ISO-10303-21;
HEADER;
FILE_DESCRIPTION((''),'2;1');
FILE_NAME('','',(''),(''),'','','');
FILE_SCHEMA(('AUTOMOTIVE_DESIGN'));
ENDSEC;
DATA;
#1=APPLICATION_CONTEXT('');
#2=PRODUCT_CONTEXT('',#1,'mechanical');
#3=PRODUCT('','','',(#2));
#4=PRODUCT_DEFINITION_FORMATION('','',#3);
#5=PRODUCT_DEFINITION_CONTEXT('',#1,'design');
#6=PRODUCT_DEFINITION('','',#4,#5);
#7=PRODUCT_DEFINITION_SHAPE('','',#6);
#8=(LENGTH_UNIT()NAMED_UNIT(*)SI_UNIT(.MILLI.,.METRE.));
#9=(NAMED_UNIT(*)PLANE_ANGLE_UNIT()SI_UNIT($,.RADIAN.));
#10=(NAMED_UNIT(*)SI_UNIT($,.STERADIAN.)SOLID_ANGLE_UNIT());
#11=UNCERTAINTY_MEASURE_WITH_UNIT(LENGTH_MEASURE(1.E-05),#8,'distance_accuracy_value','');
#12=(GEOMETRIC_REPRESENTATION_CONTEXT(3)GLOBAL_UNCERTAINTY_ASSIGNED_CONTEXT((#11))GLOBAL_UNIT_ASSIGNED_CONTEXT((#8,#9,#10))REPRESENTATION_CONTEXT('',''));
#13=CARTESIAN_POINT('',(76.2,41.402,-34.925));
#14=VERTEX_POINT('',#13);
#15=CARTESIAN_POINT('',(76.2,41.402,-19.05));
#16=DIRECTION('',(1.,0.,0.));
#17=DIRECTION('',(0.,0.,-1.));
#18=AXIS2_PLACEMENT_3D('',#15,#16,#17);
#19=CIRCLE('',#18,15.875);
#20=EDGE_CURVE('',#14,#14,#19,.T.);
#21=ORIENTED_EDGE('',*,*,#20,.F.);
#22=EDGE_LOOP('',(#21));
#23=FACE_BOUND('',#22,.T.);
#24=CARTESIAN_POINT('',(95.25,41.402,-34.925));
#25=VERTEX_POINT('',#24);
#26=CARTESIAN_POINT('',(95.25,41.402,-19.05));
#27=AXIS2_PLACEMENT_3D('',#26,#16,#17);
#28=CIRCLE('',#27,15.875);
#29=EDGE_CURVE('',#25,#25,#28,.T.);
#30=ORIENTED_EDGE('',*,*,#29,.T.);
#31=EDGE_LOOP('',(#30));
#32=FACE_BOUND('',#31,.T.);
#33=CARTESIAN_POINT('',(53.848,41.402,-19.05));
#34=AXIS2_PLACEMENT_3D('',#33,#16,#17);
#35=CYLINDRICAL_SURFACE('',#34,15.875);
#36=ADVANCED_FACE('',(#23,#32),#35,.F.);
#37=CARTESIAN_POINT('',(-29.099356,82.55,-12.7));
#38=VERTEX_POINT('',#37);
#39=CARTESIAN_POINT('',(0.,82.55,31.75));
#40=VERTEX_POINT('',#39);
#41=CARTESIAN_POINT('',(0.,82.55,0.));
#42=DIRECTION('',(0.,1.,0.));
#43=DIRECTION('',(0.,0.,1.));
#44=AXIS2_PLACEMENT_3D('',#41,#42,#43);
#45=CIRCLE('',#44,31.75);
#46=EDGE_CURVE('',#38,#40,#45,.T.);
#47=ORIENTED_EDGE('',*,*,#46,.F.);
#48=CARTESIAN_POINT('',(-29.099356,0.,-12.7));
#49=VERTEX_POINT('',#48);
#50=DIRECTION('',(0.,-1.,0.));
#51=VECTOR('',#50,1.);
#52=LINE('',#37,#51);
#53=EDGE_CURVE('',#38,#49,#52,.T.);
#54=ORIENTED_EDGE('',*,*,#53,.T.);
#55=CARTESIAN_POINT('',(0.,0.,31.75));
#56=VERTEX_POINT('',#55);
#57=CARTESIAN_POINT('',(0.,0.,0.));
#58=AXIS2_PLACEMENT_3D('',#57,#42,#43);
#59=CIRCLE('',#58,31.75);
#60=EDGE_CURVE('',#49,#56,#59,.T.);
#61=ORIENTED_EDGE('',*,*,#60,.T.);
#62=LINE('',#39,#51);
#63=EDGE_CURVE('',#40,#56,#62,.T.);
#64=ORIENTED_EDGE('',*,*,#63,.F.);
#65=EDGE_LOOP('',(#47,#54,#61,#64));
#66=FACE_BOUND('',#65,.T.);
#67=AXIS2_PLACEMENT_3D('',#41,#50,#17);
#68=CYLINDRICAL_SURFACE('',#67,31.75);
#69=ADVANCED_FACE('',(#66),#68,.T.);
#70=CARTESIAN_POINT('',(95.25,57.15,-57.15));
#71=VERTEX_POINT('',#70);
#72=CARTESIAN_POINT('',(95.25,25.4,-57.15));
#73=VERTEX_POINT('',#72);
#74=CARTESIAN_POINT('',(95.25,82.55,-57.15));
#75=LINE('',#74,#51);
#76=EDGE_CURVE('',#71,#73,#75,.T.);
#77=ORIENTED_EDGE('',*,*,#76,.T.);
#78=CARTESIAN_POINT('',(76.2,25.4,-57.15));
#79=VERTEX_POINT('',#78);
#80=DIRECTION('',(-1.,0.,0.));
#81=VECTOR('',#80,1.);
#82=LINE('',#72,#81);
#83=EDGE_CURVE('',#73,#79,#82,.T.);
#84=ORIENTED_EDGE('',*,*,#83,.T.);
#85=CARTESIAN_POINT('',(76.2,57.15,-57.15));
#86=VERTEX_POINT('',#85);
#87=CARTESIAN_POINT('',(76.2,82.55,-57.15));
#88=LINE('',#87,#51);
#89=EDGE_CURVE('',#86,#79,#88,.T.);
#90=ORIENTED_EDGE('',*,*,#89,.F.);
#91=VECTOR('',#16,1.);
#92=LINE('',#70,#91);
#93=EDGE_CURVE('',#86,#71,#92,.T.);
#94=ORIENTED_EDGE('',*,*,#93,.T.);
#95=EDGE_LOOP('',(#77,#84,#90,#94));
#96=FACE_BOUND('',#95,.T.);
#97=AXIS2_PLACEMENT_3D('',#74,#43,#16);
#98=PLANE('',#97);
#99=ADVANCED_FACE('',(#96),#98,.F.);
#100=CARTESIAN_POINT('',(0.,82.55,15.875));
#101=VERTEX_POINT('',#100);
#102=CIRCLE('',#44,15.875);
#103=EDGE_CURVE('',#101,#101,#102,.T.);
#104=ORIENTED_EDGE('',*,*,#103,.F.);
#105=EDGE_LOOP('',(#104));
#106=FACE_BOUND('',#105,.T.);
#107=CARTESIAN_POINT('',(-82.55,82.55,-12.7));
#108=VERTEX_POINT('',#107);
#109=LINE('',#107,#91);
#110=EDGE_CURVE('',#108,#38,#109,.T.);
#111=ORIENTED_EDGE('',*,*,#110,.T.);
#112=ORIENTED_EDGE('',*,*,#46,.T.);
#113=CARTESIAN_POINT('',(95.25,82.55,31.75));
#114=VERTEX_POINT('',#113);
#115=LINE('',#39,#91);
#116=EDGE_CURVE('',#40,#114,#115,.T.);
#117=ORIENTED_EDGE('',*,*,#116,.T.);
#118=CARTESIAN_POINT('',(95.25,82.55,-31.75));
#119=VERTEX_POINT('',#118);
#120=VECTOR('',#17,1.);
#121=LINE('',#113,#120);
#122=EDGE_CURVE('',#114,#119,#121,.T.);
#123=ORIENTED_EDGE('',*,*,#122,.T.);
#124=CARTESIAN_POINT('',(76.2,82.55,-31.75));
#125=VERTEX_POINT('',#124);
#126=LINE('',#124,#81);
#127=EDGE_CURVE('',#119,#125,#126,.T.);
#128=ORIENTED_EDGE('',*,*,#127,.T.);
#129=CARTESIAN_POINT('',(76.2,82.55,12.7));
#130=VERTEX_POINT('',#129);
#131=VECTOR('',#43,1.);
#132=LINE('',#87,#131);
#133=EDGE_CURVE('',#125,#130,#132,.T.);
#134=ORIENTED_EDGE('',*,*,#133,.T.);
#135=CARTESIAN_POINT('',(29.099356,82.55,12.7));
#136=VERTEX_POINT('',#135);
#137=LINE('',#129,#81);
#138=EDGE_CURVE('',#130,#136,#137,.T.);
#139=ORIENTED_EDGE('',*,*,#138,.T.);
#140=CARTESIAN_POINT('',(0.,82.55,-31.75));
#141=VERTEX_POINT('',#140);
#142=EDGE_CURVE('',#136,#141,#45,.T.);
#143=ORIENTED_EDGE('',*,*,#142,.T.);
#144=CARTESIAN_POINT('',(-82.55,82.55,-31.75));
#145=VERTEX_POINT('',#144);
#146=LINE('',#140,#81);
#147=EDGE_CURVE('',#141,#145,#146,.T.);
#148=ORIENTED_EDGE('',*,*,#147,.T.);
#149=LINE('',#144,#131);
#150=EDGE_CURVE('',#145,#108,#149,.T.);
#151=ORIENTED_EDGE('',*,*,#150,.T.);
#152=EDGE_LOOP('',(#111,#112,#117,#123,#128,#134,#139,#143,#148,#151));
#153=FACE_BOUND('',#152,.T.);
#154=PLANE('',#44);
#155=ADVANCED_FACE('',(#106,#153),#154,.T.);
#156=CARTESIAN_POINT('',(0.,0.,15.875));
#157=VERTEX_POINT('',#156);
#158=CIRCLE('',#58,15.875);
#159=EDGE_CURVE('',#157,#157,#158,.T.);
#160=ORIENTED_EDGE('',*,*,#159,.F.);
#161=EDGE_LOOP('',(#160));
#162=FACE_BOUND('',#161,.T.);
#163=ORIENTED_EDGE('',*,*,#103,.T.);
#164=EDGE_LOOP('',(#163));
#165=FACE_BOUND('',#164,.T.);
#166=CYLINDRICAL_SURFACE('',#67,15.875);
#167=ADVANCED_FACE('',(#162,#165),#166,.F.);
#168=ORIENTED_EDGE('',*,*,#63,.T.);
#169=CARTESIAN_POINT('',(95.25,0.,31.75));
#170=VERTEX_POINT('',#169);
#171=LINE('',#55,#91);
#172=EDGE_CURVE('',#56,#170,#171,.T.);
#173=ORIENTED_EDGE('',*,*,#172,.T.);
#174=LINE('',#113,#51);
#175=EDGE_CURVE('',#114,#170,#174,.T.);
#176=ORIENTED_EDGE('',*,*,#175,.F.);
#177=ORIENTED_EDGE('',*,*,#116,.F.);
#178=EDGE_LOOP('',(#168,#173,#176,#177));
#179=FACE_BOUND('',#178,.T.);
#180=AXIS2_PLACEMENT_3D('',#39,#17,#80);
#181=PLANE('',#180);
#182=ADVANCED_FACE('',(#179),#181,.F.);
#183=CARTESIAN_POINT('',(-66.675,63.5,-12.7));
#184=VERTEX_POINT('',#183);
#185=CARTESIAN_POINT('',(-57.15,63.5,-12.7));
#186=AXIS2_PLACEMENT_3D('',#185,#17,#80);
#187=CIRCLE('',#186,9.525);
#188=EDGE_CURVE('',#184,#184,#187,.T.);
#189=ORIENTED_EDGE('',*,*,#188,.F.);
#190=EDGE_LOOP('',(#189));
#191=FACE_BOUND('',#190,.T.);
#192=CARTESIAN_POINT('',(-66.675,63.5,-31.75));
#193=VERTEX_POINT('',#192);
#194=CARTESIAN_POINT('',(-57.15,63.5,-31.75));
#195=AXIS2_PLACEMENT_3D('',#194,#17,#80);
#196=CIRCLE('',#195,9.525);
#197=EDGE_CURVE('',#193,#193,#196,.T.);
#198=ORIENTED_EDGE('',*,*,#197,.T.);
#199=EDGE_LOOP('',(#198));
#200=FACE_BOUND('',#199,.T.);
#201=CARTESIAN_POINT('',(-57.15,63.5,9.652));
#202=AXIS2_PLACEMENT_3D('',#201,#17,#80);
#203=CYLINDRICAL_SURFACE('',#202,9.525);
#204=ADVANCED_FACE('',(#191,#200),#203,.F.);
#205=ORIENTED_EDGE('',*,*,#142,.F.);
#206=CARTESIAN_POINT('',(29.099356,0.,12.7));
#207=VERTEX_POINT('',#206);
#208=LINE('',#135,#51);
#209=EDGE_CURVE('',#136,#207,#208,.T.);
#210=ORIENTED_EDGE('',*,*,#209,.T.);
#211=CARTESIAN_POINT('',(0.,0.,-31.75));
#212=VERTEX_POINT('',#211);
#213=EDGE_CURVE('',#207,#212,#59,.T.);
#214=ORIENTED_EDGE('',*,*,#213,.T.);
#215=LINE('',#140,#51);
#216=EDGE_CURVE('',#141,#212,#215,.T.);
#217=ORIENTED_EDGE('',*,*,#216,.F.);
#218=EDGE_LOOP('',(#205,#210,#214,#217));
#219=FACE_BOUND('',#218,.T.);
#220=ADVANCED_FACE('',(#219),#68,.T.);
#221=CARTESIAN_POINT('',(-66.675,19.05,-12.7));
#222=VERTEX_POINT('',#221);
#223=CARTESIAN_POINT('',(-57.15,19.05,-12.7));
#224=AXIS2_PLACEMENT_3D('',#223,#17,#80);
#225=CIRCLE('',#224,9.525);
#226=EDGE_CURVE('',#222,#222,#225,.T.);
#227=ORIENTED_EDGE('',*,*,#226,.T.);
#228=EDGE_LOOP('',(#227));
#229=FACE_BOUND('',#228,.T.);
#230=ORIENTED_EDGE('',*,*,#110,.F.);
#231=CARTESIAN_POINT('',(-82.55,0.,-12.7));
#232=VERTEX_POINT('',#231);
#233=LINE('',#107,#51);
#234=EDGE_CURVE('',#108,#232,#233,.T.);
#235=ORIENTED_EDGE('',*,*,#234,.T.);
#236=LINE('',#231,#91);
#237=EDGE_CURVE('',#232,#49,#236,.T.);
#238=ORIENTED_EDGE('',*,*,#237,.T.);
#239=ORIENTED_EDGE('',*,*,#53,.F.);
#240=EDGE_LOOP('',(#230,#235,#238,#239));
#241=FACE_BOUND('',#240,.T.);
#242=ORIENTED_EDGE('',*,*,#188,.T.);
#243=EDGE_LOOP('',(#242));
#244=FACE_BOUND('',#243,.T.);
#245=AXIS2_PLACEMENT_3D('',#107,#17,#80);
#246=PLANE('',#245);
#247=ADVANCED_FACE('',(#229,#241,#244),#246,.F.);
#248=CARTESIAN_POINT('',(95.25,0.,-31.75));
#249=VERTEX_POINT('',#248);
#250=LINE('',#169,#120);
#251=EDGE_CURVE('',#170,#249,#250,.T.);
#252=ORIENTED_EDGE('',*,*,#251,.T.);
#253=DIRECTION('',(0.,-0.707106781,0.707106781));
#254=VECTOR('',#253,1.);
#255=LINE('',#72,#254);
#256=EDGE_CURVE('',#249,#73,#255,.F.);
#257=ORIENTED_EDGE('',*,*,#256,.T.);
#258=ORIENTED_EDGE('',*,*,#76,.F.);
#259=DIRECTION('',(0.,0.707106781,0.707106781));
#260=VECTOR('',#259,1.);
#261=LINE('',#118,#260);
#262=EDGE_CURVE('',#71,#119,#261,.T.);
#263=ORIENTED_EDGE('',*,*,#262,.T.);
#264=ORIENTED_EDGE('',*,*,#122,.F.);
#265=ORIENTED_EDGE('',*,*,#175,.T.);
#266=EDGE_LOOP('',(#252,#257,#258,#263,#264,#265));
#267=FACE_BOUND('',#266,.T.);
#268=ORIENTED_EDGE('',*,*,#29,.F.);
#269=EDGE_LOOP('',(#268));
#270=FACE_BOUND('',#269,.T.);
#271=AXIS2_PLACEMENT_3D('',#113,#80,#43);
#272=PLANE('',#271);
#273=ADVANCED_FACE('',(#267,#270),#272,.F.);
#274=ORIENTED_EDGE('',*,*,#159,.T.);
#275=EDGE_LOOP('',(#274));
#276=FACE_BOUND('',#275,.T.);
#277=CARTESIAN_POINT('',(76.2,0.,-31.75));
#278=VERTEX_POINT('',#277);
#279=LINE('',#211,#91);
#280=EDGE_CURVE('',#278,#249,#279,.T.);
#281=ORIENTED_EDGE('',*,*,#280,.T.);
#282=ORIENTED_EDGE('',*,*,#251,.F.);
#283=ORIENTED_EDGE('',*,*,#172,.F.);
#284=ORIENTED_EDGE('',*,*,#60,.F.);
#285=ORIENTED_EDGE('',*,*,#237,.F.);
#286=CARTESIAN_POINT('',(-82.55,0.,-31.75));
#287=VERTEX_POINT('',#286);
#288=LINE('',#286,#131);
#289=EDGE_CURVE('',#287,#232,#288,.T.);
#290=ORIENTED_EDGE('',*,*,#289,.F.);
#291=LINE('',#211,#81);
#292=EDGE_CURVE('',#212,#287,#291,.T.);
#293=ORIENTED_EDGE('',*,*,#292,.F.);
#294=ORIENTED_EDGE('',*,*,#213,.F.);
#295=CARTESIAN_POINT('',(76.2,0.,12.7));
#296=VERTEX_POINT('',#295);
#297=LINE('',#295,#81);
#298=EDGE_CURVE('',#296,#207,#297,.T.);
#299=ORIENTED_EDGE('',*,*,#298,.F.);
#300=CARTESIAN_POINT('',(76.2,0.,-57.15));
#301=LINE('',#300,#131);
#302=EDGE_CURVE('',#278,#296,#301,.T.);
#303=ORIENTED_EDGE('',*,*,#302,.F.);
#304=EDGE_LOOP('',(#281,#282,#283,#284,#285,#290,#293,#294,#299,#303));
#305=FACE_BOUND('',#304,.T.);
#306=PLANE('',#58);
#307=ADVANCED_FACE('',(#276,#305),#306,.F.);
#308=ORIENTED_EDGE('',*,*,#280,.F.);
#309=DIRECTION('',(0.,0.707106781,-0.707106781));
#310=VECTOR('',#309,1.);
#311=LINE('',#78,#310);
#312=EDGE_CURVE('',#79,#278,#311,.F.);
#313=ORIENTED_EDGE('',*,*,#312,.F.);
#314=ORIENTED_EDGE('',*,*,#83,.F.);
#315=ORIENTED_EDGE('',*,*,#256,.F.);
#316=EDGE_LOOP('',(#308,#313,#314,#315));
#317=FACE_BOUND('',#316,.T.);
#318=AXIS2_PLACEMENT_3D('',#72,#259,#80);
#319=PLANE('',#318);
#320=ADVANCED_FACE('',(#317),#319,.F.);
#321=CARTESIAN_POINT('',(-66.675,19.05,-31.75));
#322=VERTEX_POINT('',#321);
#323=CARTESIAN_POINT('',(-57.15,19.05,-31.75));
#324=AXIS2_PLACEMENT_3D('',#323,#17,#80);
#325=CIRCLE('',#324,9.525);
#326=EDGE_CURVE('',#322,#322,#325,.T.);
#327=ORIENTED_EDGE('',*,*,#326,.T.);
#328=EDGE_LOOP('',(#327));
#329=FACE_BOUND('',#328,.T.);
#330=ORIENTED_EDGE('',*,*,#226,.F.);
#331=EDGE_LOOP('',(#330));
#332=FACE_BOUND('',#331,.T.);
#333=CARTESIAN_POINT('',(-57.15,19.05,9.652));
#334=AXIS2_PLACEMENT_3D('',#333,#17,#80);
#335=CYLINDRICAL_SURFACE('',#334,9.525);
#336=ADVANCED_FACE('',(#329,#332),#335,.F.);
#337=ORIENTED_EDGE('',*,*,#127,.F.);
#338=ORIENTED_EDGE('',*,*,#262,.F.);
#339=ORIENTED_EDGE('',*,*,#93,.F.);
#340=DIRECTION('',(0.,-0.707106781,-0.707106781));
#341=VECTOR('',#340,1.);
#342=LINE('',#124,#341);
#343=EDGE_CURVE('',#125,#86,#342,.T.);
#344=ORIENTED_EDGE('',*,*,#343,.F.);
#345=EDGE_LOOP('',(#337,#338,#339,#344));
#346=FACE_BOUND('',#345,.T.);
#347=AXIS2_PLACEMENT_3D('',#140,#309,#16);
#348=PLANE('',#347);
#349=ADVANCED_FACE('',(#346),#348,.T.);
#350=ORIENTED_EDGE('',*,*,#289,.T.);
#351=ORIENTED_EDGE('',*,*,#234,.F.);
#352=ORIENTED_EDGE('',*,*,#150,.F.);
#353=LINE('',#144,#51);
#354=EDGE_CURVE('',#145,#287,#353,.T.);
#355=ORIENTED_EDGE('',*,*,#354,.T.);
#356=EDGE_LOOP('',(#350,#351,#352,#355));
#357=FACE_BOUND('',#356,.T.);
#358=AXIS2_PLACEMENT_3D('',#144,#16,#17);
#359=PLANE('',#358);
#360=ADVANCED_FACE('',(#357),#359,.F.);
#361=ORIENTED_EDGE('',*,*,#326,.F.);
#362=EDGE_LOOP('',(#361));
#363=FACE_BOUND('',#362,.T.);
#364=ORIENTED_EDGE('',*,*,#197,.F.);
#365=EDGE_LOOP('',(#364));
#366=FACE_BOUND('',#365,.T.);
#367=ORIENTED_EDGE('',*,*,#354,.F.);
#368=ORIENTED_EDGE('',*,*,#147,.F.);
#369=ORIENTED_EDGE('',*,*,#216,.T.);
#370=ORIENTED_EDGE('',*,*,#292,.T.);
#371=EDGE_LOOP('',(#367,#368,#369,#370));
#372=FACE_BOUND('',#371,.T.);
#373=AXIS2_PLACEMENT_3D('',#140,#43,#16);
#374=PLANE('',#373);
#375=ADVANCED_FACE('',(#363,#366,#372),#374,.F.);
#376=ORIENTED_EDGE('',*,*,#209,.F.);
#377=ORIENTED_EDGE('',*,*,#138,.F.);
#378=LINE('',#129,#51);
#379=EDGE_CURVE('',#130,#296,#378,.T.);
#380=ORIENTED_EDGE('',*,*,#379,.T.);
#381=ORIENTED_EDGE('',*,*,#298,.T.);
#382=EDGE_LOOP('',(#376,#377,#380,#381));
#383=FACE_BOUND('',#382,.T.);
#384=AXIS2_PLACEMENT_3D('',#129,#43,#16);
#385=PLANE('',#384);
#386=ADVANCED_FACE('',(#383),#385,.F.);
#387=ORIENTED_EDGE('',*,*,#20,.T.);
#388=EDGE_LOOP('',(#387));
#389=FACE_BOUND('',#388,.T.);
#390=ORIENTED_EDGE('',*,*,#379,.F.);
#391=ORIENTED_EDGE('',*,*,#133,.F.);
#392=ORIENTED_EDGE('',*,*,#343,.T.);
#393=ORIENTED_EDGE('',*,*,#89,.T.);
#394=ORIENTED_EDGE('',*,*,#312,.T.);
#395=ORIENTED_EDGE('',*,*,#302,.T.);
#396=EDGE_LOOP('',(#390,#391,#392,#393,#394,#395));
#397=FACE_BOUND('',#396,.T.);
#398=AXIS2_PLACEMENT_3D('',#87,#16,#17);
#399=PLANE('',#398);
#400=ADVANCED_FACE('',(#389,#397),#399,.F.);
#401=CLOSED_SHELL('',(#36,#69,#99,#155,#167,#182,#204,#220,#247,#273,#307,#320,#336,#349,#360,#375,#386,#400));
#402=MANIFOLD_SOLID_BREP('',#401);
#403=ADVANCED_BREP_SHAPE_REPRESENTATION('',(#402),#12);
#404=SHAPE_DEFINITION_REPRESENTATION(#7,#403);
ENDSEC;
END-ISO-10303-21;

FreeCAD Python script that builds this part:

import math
import FreeCAD as App
import Part
import Sketcher

V = App.Vector
Q = App.Units.Quantity


def edges_at(feature, points):
    """Names of the edges that pass closest to the given points."""
    edges = feature.Shape.Edges
    near = lambda p: min(range(len(edges)), key=lambda i: edges[i].distToShape(Part.Vertex(*p))[0])
    return sorted({f"Edge{near(p) + 1}" for p in points})

doc = App.newDocument("Part")
body = doc.addObject("PartDesign::Body", "Body")

# Sketch on XZ plane
sketch1 = body.newObject("Sketcher::SketchObject", "Sketch")
sketch1.AttachmentSupport = (doc.getObject("XZ_Plane"), [""])
sketch1.MapMode = "FlatFace"
sketch1.addGeometry([
    Part.LineSegment(V(0, -32, 0), V(-83, -32, 0)),  # 0
    Part.LineSegment(V(-83, -32, 0), V(-83, -13, 0)),  # 1
    Part.LineSegment(V(-83, -13, 0), V(-29, -13, 0)),  # 2
    Part.ArcOfCircle(Part.Circle(V(0, 0, 0), V(0, 0, 1), 32), math.radians(90), math.radians(204)),  # 3
    Part.LineSegment(V(0, 32, 0), V(95, 32, 0)),  # 4
    Part.LineSegment(V(95, 32, 0), V(95, -57, 0)),  # 5
    Part.LineSegment(V(95, -57, 0), V(76, -57, 0)),  # 6
    Part.LineSegment(V(76, -57, 0), V(76, 13, 0)),  # 7
    Part.LineSegment(V(76, 13, 0), V(29, 13, 0)),  # 8
    Part.ArcOfCircle(Part.Circle(V(0, 0, 0), V(0, 0, 1), 32), math.radians(-90), math.radians(24)),  # 9
    Part.Circle(V(0, 0, 0), V(0, 0, 1), 16),  # 10
], False)
sketch1.addConstraint([
    Sketcher.Constraint("Coincident", 0, 2, 1, 1),
    Sketcher.Constraint("Coincident", 1, 2, 2, 1),
    Sketcher.Constraint("Coincident", 2, 2, 3, 2),
    Sketcher.Constraint("Tangent", 3, 1, 4, 1),
    Sketcher.Constraint("Coincident", 4, 2, 5, 1),
    Sketcher.Constraint("Coincident", 5, 2, 6, 1),
    Sketcher.Constraint("Coincident", 6, 2, 7, 1),
    Sketcher.Constraint("Coincident", 7, 2, 8, 1),
    Sketcher.Constraint("Coincident", 8, 2, 9, 2),
    Sketcher.Constraint("Tangent", 9, 1, 0, 1),
    Sketcher.Constraint("Horizontal", 0),
    Sketcher.Constraint("Vertical", 1),
    Sketcher.Constraint("Horizontal", 2),
    Sketcher.Constraint("Horizontal", 4),
    Sketcher.Constraint("Vertical", 5),
    Sketcher.Constraint("Horizontal", 6),
    Sketcher.Constraint("Vertical", 7),
    Sketcher.Constraint("Horizontal", 8),
    Sketcher.Constraint("Coincident", 3, 3, -1, 1),
    Sketcher.Constraint("Coincident", 9, 3, -1, 1),
    Sketcher.Constraint("Coincident", 10, 3, -1, 1),
    Sketcher.Constraint("Equal", 3, 9),
    Sketcher.Constraint("Equal", 6, 1),
    Sketcher.Constraint("Diameter", 10, Q("1.25 in")),
    Sketcher.Constraint("Radius", 3, Q("1.25 in")),
    Sketcher.Constraint("DistanceY", 5, 2, 5, 1, Q("3.5 in")),
    Sketcher.Constraint("DistanceX", -1, 1, 6, 2, Q("3 in")),
    Sketcher.Constraint("DistanceX", 0, 2, 0, 1, Q("3.25 in")),
    Sketcher.Constraint("DistanceX", 4, 1, 4, 2, Q("3.75 in")),
    Sketcher.Constraint("DistanceY", 7, 1, 7, 2, Q("2.75 in")),
])
pad1 = body.newObject("PartDesign::Pad", "Pad")
pad1.Profile = sketch1
pad1.Length = Q("3.25 in")
pad1.Reversed = True

# Sketch on YZ plane
sketch2 = body.newObject("Sketcher::SketchObject", "Sketch001")
sketch2.AttachmentSupport = (doc.getObject("YZ_Plane"), [""])
sketch2.MapMode = "FlatFace"
sketch2.AttachmentOffset = App.Placement(V(0, 0, 3.75 * 25.4), App.Rotation())
sketch2.addGeometry(Part.Circle(V(41, -19, 0), V(0, 0, 1), 16), False)
sketch2.addConstraint([
    Sketcher.Constraint("Diameter", 0, Q("1.25 in")),
    Sketcher.Constraint("DistanceX", -1, 1, 0, 3, Q("1.63 in")),
    Sketcher.Constraint("DistanceY", 0, 3, -1, 1, Q("0.75 in")),
])
pocket1 = body.newObject("PartDesign::Pocket", "Pocket")
pocket1.Profile = sketch2
pocket1.Length = Q("1.63 in")

# Sketch on XY plane
sketch3 = body.newObject("Sketcher::SketchObject", "Sketch002")
sketch3.AttachmentSupport = (doc.getObject("XY_Plane"), [""])
sketch3.MapMode = "FlatFace"
sketch3.AttachmentOffset = App.Placement(V(0, 0, -1.25 * 25.4), App.Rotation())
sketch3.addGeometry([
    Part.Circle(V(-57, 64, 0), V(0, 0, 1), 10),
    Part.Circle(V(-57, 19, 0), V(0, 0, 1), 10),
], False)
sketch3.addConstraint([
    Sketcher.Constraint("Equal", 0, 1),
    Sketcher.Constraint("Vertical", 0, 3, 1, 3),
    Sketcher.Constraint("Diameter", 0, Q("0.75 in")),
    Sketcher.Constraint("DistanceY", -1, 1, 0, 3, Q("2.5 in")),
    Sketcher.Constraint("DistanceX", 0, 3, -1, 1, Q("2.25 in")),
    Sketcher.Constraint("DistanceY", -1, 1, 1, 3, Q("0.75 in")),
])
pocket2 = body.newObject("PartDesign::Pocket", "Pocket001")
pocket2.Profile = sketch3
pocket2.Length = Q("1.63 in")
pocket2.Reversed = True
doc.recompute()

chamfer = body.newObject("PartDesign::Chamfer", "Chamfer")
chamfer.Base = (pocket2, edges_at(pocket2, [(85.725, 82.55, -57.15)]))
chamfer.Size = Q("1 in")
doc.recompute()

chamfer2 = body.newObject("PartDesign::Chamfer", "Chamfer001")
chamfer2.Base = (chamfer, edges_at(chamfer, [(85.725, 0, -57.15)]))
chamfer2.Size = Q("1 in")

doc.recompute()
